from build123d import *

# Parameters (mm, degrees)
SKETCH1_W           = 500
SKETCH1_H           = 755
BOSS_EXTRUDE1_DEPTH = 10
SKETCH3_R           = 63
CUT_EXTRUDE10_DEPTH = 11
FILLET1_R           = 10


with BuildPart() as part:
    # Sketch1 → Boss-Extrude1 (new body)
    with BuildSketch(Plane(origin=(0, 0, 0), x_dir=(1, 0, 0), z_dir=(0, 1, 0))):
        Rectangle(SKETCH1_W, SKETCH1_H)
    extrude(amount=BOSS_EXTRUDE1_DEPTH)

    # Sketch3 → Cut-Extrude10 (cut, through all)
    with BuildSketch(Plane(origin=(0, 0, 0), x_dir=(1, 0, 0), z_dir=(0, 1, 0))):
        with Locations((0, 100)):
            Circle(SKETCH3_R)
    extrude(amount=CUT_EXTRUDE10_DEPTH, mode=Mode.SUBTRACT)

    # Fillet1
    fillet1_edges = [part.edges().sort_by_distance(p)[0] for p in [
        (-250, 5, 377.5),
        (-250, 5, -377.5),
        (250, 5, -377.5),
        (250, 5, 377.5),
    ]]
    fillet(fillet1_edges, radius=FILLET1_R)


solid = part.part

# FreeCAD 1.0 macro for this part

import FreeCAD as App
import Part
import Sketcher
Q = App.Units.Quantity


def edges_at(feature, points):
    """Names of the edges that pass closest to the given points."""
    edges = feature.Shape.Edges
    near = lambda p: min(range(len(edges)), key=lambda i: edges[i].distToShape(Part.Vertex(*p))[0])
    return sorted({f"Edge{near(p) + 1}" for p in points})


def add_polygon(sketch, points):
    """Adds a closed chain of lines whose ends are joined by coincident constraints."""
    first, n = sketch.GeometryCount, len(points)
    for a, b in zip(points, points[1:] + points[:1]):
        sketch.addGeometry(Part.LineSegment(App.Vector(*a, 0), App.Vector(*b, 0)), False)
    for i in range(n):
        sketch.addConstraint(Sketcher.Constraint("Coincident", first + i, 2, first + (i + 1) % n, 1))

doc = App.newDocument("Part")
body = doc.addObject("PartDesign::Body", "Body")

# Sketch on XZ plane
sketch1 = body.newObject("Sketcher::SketchObject", "Sketch")
sketch1.AttachmentSupport = (doc.getObject("XZ_Plane"), [""])
sketch1.MapMode = "FlatFace"
add_polygon(sketch1, [(-250, -378), (-250, 378), (250, 378), (250, -378)])  # lines 0-3
sketch1.addConstraint([
    Sketcher.Constraint("Vertical", 0),
    Sketcher.Constraint("Horizontal", 1),
    Sketcher.Constraint("Vertical", 2),
    Sketcher.Constraint("Horizontal", 3),
    Sketcher.Constraint("Symmetric", 0, 2, 2, 2, -1, 1),
    Sketcher.Constraint("DistanceX", 1, 1, 1, 2, Q("500 mm")),
    Sketcher.Constraint("DistanceY", 0, 1, 0, 2, Q("755 mm")),
])
pad1 = body.newObject("PartDesign::Pad", "Pad")
pad1.Profile = sketch1
pad1.Length = 10
pad1.Reversed = True

# Sketch on XZ plane
sketch2 = body.newObject("Sketcher::SketchObject", "Sketch001")
sketch2.AttachmentSupport = (doc.getObject("XZ_Plane"), [""])
sketch2.MapMode = "FlatFace"
sketch2.addGeometry(Part.Circle(App.Vector(0, -100, 0), App.Vector(0, 0, 1), 63), False)
sketch2.addConstraint([
    Sketcher.Constraint("PointOnObject", 0, 3, -2),
    Sketcher.Constraint("Diameter", 0, Q("126 mm")),
    Sketcher.Constraint("DistanceY", 0, 3, -1, 1, Q("100 mm")),
])
pocket1 = body.newObject("PartDesign::Pocket", "Pocket")
pocket1.Profile = sketch2
pocket1.Type = "ThroughAll"
doc.recompute()

fillet = body.newObject("PartDesign::Fillet", "Fillet")
fillet.Base = (pocket1, edges_at(pocket1, [
    (-250, 5, 377.5),
    (-250, 5, -377.5),
    (250, 5, -377.5),
    (250, 5, 377.5),
]))
fillet.Radius = 10

doc.recompute()
